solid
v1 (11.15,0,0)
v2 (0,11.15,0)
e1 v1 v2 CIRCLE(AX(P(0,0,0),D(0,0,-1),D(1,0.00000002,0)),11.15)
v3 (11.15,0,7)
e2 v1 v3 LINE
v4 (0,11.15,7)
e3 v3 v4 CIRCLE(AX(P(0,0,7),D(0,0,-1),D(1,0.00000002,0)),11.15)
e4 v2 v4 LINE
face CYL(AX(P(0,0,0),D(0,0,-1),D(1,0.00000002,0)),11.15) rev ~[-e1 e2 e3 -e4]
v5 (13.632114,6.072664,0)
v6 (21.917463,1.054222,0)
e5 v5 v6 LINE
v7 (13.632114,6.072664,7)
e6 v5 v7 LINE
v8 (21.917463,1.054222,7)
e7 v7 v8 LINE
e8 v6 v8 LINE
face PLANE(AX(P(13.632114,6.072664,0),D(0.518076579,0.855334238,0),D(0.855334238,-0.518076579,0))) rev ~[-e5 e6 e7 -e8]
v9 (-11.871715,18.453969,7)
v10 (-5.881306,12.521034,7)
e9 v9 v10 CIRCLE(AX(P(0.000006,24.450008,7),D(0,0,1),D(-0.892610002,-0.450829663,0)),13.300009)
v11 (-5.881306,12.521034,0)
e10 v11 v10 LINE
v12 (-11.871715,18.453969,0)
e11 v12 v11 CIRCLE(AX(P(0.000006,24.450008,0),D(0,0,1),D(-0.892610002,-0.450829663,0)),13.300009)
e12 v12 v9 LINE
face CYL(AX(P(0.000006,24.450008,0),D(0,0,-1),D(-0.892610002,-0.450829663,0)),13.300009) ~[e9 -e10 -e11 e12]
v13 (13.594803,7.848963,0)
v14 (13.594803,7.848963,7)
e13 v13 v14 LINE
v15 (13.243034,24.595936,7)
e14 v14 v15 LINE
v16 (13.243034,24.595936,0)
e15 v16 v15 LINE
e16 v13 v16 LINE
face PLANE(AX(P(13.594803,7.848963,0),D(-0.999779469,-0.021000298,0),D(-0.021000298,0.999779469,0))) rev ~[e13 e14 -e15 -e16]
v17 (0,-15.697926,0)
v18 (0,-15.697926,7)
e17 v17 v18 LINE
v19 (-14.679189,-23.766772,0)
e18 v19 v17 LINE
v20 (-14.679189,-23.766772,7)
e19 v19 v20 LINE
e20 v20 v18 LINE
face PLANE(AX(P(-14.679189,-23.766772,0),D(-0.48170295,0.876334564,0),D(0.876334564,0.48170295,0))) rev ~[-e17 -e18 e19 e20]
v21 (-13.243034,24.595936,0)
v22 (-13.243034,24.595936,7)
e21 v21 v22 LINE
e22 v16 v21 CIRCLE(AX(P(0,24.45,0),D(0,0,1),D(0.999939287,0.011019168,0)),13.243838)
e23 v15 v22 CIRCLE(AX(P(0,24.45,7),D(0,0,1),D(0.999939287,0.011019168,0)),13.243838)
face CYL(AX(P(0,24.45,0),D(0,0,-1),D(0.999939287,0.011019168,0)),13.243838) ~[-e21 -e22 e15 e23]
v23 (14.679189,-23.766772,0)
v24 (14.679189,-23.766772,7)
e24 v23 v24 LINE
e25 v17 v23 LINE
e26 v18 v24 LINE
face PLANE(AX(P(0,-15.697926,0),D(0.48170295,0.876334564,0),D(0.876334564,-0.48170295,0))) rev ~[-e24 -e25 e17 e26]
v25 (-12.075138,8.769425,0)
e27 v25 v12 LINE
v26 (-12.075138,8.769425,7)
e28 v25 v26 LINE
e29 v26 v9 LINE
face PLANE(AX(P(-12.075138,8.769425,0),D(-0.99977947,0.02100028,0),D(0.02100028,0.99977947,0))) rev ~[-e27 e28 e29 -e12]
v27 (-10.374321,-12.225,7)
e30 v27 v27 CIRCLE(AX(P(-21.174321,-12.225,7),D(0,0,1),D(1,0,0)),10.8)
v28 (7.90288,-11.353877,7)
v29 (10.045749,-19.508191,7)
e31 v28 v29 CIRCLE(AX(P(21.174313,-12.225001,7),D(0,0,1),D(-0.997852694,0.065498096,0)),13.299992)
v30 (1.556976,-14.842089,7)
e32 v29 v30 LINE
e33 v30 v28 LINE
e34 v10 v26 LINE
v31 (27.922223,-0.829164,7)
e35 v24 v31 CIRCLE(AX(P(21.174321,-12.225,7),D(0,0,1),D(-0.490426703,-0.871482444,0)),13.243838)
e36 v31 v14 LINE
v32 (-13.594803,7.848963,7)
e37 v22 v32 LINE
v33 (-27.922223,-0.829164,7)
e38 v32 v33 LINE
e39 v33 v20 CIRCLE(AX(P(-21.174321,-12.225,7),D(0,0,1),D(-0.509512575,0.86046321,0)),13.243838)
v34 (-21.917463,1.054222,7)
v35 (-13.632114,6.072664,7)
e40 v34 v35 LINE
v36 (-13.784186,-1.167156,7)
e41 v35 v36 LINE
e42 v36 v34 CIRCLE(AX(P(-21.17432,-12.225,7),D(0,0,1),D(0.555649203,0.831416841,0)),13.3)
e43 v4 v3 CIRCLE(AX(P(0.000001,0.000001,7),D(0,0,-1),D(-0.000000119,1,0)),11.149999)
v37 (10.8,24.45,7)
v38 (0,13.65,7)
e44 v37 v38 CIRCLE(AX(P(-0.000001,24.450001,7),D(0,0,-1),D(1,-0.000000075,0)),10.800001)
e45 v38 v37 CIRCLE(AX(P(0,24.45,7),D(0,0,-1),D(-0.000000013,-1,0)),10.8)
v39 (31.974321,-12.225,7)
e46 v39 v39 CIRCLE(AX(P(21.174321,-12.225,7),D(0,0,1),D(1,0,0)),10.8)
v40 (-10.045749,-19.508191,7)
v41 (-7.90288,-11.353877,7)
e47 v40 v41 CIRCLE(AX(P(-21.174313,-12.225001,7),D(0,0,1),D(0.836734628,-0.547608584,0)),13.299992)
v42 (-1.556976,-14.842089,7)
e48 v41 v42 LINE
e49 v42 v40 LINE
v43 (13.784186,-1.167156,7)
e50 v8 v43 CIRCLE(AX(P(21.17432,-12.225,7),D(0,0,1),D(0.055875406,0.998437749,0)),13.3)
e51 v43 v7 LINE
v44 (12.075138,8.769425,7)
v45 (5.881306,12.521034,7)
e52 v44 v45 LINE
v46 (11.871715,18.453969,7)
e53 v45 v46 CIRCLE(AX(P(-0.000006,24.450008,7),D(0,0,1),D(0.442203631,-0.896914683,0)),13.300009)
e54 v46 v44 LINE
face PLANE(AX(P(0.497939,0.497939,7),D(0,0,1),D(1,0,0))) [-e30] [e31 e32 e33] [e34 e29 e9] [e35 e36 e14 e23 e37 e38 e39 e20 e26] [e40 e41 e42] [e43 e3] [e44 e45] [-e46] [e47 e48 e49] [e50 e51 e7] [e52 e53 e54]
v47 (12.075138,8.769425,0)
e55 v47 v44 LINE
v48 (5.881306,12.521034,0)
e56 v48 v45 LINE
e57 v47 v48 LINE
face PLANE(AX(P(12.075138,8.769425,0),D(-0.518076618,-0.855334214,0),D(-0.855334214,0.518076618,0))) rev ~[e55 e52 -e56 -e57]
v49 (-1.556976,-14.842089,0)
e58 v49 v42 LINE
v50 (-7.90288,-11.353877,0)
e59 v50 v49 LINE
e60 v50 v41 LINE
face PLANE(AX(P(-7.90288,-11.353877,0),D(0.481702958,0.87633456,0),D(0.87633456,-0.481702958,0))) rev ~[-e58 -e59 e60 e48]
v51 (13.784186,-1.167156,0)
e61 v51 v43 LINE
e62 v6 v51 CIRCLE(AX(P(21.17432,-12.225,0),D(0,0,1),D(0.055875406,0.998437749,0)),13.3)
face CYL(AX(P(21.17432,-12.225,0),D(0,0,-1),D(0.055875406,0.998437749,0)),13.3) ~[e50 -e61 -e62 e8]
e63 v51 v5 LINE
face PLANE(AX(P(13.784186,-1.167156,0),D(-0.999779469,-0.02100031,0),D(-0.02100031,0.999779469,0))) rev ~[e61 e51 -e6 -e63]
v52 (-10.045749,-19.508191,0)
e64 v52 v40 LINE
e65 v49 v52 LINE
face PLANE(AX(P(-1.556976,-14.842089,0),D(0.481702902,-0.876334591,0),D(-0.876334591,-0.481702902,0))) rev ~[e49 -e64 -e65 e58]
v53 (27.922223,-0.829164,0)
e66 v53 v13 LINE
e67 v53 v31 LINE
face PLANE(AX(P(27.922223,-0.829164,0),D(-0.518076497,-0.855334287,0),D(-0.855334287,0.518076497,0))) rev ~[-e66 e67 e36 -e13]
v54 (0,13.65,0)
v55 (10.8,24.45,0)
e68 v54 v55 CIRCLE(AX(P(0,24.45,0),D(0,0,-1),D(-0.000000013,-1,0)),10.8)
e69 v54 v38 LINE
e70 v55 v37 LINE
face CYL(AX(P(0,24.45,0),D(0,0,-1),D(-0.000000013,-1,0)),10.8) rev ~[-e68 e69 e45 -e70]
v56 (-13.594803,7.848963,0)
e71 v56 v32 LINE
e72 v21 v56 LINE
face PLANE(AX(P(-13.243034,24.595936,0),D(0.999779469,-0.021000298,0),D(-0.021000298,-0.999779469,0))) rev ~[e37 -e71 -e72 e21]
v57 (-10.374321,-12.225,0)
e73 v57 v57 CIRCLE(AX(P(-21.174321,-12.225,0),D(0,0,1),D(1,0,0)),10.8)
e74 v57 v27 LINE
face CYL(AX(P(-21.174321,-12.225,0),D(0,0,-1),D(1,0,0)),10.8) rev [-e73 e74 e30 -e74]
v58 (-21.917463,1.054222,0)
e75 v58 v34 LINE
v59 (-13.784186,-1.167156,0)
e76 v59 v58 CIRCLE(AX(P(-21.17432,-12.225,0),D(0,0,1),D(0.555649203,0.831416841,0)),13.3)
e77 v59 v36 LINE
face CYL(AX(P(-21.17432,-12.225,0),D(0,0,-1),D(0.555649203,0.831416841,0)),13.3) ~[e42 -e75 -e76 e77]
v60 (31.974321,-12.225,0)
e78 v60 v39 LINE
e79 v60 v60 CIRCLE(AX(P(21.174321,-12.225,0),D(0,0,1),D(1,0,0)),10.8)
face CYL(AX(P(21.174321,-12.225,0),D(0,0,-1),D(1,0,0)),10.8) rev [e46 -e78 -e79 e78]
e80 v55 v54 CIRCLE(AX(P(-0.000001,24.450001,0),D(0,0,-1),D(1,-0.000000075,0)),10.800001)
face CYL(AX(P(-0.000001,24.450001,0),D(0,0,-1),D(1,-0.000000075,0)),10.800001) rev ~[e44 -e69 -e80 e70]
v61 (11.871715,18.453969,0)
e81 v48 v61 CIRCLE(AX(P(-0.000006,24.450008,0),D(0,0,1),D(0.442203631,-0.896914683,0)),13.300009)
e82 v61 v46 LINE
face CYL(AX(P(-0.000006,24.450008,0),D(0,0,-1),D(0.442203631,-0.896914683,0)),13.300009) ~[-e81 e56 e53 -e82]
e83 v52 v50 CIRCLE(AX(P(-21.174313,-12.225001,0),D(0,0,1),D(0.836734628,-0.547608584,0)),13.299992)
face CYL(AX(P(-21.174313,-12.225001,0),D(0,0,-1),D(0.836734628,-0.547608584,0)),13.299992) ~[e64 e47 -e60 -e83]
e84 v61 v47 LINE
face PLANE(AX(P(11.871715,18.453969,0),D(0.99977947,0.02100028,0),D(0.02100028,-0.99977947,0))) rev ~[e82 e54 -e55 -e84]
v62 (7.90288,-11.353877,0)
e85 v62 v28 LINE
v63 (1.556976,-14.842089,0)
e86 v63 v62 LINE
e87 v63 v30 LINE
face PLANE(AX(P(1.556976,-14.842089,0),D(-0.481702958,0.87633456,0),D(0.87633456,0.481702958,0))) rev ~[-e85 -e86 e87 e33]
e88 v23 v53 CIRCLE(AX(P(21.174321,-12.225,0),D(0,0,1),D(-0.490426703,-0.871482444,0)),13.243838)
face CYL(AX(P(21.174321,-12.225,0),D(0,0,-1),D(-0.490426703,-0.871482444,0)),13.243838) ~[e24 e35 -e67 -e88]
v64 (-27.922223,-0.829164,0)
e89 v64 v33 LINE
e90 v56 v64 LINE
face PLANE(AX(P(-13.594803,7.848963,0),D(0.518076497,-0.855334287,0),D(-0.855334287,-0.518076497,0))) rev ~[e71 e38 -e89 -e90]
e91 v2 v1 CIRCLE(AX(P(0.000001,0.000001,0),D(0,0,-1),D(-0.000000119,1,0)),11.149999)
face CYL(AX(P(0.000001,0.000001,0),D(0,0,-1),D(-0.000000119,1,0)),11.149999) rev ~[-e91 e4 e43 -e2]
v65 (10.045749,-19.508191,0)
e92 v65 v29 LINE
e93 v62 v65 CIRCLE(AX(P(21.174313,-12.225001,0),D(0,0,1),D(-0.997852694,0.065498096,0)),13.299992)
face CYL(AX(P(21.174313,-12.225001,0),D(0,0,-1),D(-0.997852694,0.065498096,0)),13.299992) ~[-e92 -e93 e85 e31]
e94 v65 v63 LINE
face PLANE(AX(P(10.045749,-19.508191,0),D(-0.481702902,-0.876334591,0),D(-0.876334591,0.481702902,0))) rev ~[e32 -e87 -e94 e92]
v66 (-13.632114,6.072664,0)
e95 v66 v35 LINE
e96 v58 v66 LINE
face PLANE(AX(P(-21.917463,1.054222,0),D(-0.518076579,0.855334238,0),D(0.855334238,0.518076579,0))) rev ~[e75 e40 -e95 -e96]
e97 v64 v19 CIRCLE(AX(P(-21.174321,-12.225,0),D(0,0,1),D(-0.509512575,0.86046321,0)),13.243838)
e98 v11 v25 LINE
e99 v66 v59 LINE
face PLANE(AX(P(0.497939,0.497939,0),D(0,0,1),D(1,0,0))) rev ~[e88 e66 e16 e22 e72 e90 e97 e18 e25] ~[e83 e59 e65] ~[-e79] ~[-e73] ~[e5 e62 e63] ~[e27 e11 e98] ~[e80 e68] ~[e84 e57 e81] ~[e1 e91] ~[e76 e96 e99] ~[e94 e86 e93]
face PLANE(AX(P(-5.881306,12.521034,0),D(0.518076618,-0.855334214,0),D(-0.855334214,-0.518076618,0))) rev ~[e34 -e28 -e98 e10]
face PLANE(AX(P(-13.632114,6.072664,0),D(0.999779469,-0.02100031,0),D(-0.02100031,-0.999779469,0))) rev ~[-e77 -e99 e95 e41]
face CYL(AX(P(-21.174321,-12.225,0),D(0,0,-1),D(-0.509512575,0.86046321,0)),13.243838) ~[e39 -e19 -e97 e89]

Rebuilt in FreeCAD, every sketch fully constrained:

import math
import FreeCAD as App
import Part
import Sketcher

doc = App.newDocument("Part")
params = doc.addObject("Spreadsheet::Sheet", "Params")
for row, (alias, value) in enumerate([
    ("sketch1_diameter", "21.6 mm"),
    ("sketch1_radius", "13.3 mm"),
    ("sketch1_radius2", "11.15 mm"),
    ("pad1_length", "7 mm"),
], start=1):
    params.set(f"A{row}", alias)
    params.set(f"B{row}", "=" + value)
    params.setAlias(f"B{row}", alias)

body = doc.addObject("PartDesign::Body", "Body")

sketch1 = body.newObject("Sketcher::SketchObject", "Sketch")
sketch1.AttachmentSupport = (doc.getObject("XY_Plane"), [""])
sketch1.MapMode = "FlatFace"
sketch1.addGeometry([
    Part.LineSegment(App.Vector(13.594803, 7.848963, 0), App.Vector(13.243034, 24.595936, 0)),
    Part.ArcOfCircle(Part.Circle(App.Vector(0, 24.45, 0), App.Vector(0, 0, 1), 13.243838), math.radians(0.631365), math.radians(179.368635)),
    Part.LineSegment(App.Vector(-13.243034, 24.595936, 0), App.Vector(-13.594803, 7.848963, 0)),
    Part.LineSegment(App.Vector(-13.594803, 7.848963, 0), App.Vector(-27.922223, -0.829164, 0)),
    Part.ArcOfCircle(Part.Circle(App.Vector(-21.174321, -12.225, 0), App.Vector(0, 0, 1), 13.243838), math.radians(120.631368), math.radians(299.368631)),
    Part.LineSegment(App.Vector(-14.679189, -23.766772, 0), App.Vector(0, -15.697926, 0)),
    Part.LineSegment(App.Vector(0, -15.697926, 0), App.Vector(14.679189, -23.766772, 0)),
    Part.ArcOfCircle(Part.Circle(App.Vector(21.174321, -12.225, 0), App.Vector(0, 0, 1), 13.243838), math.radians(-119.368631), math.radians(59.368632)),
    Part.LineSegment(App.Vector(27.922223, -0.829164, 0), App.Vector(13.594803, 7.848963, 0)),
    Part.Circle(App.Vector(-21.174321, -12.225, 0), App.Vector(0, 0, 1), 10.8),
    Part.LineSegment(App.Vector(-7.90288, -11.353877, 0), App.Vector(-1.556976, -14.842089, 0)),
    Part.LineSegment(App.Vector(-1.556976, -14.842089, 0), App.Vector(-10.045749, -19.508191, 0)),
    Part.ArcOfCircle(Part.Circle(App.Vector(-21.174313, -12.225001, 0), App.Vector(0, 0, 1), 13.299992), math.radians(-33.203106), math.radians(3.755453)),
    Part.LineSegment(App.Vector(-13.632114, 6.072664, 0), App.Vector(-13.784186, -1.167156, 0)),
    Part.ArcOfCircle(Part.Circle(App.Vector(-21.17432, -12.225, 0), App.Vector(0, 0, 1), 13.3), math.radians(56.244558), math.radians(93.203093)),
    Part.LineSegment(App.Vector(-21.917463, 1.054222, 0), App.Vector(-13.632114, 6.072664, 0)),
    Part.ArcOfCircle(Part.Circle(App.Vector(0, 0, 0), App.Vector(0, 0, 1), 11.15), math.radians(89.999999), math.radians(360.000001)),
    Part.ArcOfCircle(Part.Circle(App.Vector(0.000001, 0.000001, 0), App.Vector(0, 0, 1), 11.149999), math.radians(-0.000007), math.radians(90.000007)),
    Part.LineSegment(App.Vector(1.556976, -14.842089, 0), App.Vector(7.90288, -11.353877, 0)),
    Part.ArcOfCircle(Part.Circle(App.Vector(21.174313, -12.225001, 0), App.Vector(0, 0, 1), 13.299992), math.radians(176.244547), math.radians(213.203106)),
    Part.LineSegment(App.Vector(10.045749, -19.508191, 0), App.Vector(1.556976, -14.842089, 0)),
    Part.Circle(App.Vector(21.174321, -12.225, 0), App.Vector(0, 0, 1), 10.8),
    Part.LineSegment(App.Vector(13.784186, -1.167156, 0), App.Vector(13.632114, 6.072664, 0)),
    Part.LineSegment(App.Vector(13.632114, 6.072664, 0), App.Vector(21.917463, 1.054222, 0)),
    Part.ArcOfCircle(Part.Circle(App.Vector(21.17432, -12.225, 0), App.Vector(0, 0, 1), 13.3), math.radians(86.796907), math.radians(123.755442)),
    Part.LineSegment(App.Vector(-5.881306, 12.521034, 0), App.Vector(-12.075138, 8.769425, 0)),
    Part.LineSegment(App.Vector(-12.075138, 8.769425, 0), App.Vector(-11.871715, 18.453969, 0)),
    Part.ArcOfCircle(Part.Circle(App.Vector(0.000006, 24.450008, 0), App.Vector(0, 0, 1), 13.300009), math.radians(-153.203073), math.radians(-116.244566)),
    Part.LineSegment(App.Vector(12.075138, 8.769425, 0), App.Vector(5.881306, 12.521034, 0)),
    Part.ArcOfCircle(Part.Circle(App.Vector(-0.000006, 24.450008, 0), App.Vector(0, 0, 1), 13.300009), math.radians(-63.755434), math.radians(-26.796927)),
    Part.LineSegment(App.Vector(11.871715, 18.453969, 0), App.Vector(12.075138, 8.769425, 0)),
    Part.ArcOfCircle(Part.Circle(App.Vector(0, 24.45, 0), App.Vector(0, 0, 1), 10.8), math.radians(0.000001), math.radians(269.999999)),
    Part.ArcOfCircle(Part.Circle(App.Vector(-0.000001, 24.450001, 0), App.Vector(0, 0, 1), 10.800001), math.radians(-89.999996), math.radians(-0.000004)),
], False)
sketch1.addConstraint([
    Sketcher.Constraint("Coincident", 0, 2, 1, 1),
    Sketcher.Constraint("Coincident", 1, 2, 2, 1),
    Sketcher.Constraint("Coincident", 2, 2, 3, 1),
    Sketcher.Constraint("Coincident", 3, 2, 4, 1),
    Sketcher.Constraint("Coincident", 4, 2, 5, 1),
    Sketcher.Constraint("Coincident", 5, 2, 6, 1),
    Sketcher.Constraint("Coincident", 6, 2, 7, 1),
    Sketcher.Constraint("Coincident", 7, 2, 8, 1),
    Sketcher.Constraint("Coincident", 8, 2, 0, 1),
    Sketcher.Constraint("Coincident", 10, 2, 11, 1),
    Sketcher.Constraint("Coincident", 11, 2, 12, 1),
    Sketcher.Constraint("Coincident", 12, 2, 10, 1),
    Sketcher.Constraint("Coincident", 13, 2, 14, 1),
    Sketcher.Constraint("Coincident", 14, 2, 15, 1),
    Sketcher.Constraint("Coincident", 15, 2, 13, 1),
    Sketcher.Constraint("Tangent", 16, 1, 17, 2),
    Sketcher.Constraint("Coincident", 17, 1, 16, 2),
    Sketcher.Constraint("Coincident", 18, 2, 19, 1),
    Sketcher.Constraint("Coincident", 19, 2, 20, 1),
    Sketcher.Constraint("Coincident", 20, 2, 18, 1),
    Sketcher.Constraint("Coincident", 22, 2, 23, 1),
    Sketcher.Constraint("Coincident", 23, 2, 24, 1),
    Sketcher.Constraint("Coincident", 24, 2, 22, 1),
    Sketcher.Constraint("Coincident", 25, 2, 26, 1),
    Sketcher.Constraint("Coincident", 26, 2, 27, 1),
    Sketcher.Constraint("Coincident", 27, 2, 25, 1),
    Sketcher.Constraint("Coincident", 28, 2, 29, 1),
    Sketcher.Constraint("Coincident", 29, 2, 30, 1),
    Sketcher.Constraint("Coincident", 30, 2, 28, 1),
    Sketcher.Constraint("Tangent", 31, 1, 32, 2),
    Sketcher.Constraint("Coincident", 32, 1, 31, 2),
    Sketcher.Constraint("Coincident", 16, 3, -1, 1),
    Sketcher.Constraint("Coincident", 9, 3, 4, 3),
    Sketcher.Constraint("Coincident", 12, 3, 4, 3),
    Sketcher.Constraint("Coincident", 14, 3, 4, 3),
    Sketcher.Constraint("Coincident", 19, 3, 7, 3),
    Sketcher.Constraint("Coincident", 21, 3, 7, 3),
    Sketcher.Constraint("Coincident", 24, 3, 7, 3),
    Sketcher.Constraint("Coincident", 31, 3, 1, 3),
    Sketcher.Constraint("Equal", 1, 4),
    Sketcher.Constraint("Equal", 4, 7),
    Sketcher.Constraint("Equal", 12, 19),
    Sketcher.Constraint("Equal", 9, 21),
    Sketcher.Constraint("Equal", 14, 24),
    Sketcher.Constraint("Equal", 27, 29),
    Sketcher.Constraint("Equal", 21, 31),
    Sketcher.Constraint("Symmetric", 4, 3, 7, 3, -2),
    Sketcher.Constraint("Symmetric", 27, 3, 29, 3, -2),
    Sketcher.Constraint("Symmetric", 0, 2, 1, 2, -2),
    Sketcher.Constraint("Symmetric", 2, 2, 8, 2, -2),
    Sketcher.Constraint("Symmetric", 10, 2, 20, 2, -2),
    Sketcher.Constraint("Symmetric", 15, 2, 22, 2, -2),
    Sketcher.Constraint("Symmetric", 25, 2, 30, 2, -2),
    Sketcher.Constraint("PointOnObject", 5, 2, -2),
    Sketcher.Constraint("PointOnObject", 16, 1, -2),
    Sketcher.Constraint("PointOnObject", 17, 1, -1),
    Sketcher.Constraint("PointOnObject", 32, 1, -2),
    Sketcher.Constraint("Parallel", 6, 10),
    Sketcher.Constraint("Parallel", 5, 11),
    Sketcher.Constraint("Parallel", 2, 13),
    Sketcher.Constraint("Parallel", 3, 15),
    Sketcher.Constraint("Parallel", 11, 18),
    Sketcher.Constraint("Parallel", 10, 20),
    Sketcher.Constraint("Parallel", 0, 22),
    Sketcher.Constraint("Parallel", 8, 23),
    Sketcher.Constraint("Parallel", 15, 25),
    Sketcher.Constraint("Parallel", 13, 26),
    Sketcher.Constraint("Parallel", 23, 28),
    Sketcher.Constraint("Parallel", 22, 30),
    Sketcher.Constraint("Horizontal", 4, 2, 6, 2),
    Sketcher.Constraint("Horizontal", 3, 2, 7, 2),
    Sketcher.Constraint("Horizontal", 32, 3, 31, 1),
    Sketcher.Constraint("Equal", 2, 3),
    Sketcher.Constraint("Equal", 3, 5),
    Sketcher.Constraint("Equal", 10, 13),
    Sketcher.Constraint("Equal", 11, 15),
    Sketcher.Constraint("Equal", 22, 25),
    Sketcher.Constraint("Equal", 23, 26),
    Sketcher.Constraint("Diameter", 9, 21.6),
    Sketcher.Constraint("Radius", 14, 13.3),
    Sketcher.Constraint("Radius", 16, 11.15),
    Sketcher.Constraint("DistanceY", 16, 1, 31, 3, 13.3),
    Sketcher.Constraint("Radius", 1, 13.243838),
    Sketcher.Constraint("Radius", 27, 13.300009),
    Sketcher.Constraint("DistanceY", 4, 3, -1, 1, 12.225),
    Sketcher.Constraint("Radius", 12, 13.299992),
    Sketcher.Constraint("DistanceX", 21, 3, 7, 2, 6.747902),
    Sketcher.Constraint("DistanceX", 17, 3, 8, 2, 13.594802),
    Sketcher.Constraint("DistanceY", 15, 2, 2, 2, 1.776299),
    Sketcher.Constraint("DistanceX", 15, 2, 26, 2, 1.760399),
    Sketcher.Constraint("Distance", 11, 9.68668),
    Sketcher.Constraint("DistanceX", 4, 3, -1, 1, 21.174321),
    Sketcher.Constraint("DistanceX", 4, 2, -1, 1, 14.679189),
    Sketcher.Constraint("DistanceY", 10, 2, -1, 1, 14.842089),
    Sketcher.Constraint("DistanceY", -1, 1, 26, 2, 18.453969),
])
sketch1.setExpression("Constraints[78]", "Params.sketch1_diameter")
sketch1.setExpression("Constraints[79]", "Params.sketch1_radius")
sketch1.setExpression("Constraints[80]", "Params.sketch1_radius2")
pad1 = body.newObject("PartDesign::Pad", "Pad")
pad1.Profile = sketch1
pad1.setExpression("Length", "Params.pad1_length")

doc.recompute()
